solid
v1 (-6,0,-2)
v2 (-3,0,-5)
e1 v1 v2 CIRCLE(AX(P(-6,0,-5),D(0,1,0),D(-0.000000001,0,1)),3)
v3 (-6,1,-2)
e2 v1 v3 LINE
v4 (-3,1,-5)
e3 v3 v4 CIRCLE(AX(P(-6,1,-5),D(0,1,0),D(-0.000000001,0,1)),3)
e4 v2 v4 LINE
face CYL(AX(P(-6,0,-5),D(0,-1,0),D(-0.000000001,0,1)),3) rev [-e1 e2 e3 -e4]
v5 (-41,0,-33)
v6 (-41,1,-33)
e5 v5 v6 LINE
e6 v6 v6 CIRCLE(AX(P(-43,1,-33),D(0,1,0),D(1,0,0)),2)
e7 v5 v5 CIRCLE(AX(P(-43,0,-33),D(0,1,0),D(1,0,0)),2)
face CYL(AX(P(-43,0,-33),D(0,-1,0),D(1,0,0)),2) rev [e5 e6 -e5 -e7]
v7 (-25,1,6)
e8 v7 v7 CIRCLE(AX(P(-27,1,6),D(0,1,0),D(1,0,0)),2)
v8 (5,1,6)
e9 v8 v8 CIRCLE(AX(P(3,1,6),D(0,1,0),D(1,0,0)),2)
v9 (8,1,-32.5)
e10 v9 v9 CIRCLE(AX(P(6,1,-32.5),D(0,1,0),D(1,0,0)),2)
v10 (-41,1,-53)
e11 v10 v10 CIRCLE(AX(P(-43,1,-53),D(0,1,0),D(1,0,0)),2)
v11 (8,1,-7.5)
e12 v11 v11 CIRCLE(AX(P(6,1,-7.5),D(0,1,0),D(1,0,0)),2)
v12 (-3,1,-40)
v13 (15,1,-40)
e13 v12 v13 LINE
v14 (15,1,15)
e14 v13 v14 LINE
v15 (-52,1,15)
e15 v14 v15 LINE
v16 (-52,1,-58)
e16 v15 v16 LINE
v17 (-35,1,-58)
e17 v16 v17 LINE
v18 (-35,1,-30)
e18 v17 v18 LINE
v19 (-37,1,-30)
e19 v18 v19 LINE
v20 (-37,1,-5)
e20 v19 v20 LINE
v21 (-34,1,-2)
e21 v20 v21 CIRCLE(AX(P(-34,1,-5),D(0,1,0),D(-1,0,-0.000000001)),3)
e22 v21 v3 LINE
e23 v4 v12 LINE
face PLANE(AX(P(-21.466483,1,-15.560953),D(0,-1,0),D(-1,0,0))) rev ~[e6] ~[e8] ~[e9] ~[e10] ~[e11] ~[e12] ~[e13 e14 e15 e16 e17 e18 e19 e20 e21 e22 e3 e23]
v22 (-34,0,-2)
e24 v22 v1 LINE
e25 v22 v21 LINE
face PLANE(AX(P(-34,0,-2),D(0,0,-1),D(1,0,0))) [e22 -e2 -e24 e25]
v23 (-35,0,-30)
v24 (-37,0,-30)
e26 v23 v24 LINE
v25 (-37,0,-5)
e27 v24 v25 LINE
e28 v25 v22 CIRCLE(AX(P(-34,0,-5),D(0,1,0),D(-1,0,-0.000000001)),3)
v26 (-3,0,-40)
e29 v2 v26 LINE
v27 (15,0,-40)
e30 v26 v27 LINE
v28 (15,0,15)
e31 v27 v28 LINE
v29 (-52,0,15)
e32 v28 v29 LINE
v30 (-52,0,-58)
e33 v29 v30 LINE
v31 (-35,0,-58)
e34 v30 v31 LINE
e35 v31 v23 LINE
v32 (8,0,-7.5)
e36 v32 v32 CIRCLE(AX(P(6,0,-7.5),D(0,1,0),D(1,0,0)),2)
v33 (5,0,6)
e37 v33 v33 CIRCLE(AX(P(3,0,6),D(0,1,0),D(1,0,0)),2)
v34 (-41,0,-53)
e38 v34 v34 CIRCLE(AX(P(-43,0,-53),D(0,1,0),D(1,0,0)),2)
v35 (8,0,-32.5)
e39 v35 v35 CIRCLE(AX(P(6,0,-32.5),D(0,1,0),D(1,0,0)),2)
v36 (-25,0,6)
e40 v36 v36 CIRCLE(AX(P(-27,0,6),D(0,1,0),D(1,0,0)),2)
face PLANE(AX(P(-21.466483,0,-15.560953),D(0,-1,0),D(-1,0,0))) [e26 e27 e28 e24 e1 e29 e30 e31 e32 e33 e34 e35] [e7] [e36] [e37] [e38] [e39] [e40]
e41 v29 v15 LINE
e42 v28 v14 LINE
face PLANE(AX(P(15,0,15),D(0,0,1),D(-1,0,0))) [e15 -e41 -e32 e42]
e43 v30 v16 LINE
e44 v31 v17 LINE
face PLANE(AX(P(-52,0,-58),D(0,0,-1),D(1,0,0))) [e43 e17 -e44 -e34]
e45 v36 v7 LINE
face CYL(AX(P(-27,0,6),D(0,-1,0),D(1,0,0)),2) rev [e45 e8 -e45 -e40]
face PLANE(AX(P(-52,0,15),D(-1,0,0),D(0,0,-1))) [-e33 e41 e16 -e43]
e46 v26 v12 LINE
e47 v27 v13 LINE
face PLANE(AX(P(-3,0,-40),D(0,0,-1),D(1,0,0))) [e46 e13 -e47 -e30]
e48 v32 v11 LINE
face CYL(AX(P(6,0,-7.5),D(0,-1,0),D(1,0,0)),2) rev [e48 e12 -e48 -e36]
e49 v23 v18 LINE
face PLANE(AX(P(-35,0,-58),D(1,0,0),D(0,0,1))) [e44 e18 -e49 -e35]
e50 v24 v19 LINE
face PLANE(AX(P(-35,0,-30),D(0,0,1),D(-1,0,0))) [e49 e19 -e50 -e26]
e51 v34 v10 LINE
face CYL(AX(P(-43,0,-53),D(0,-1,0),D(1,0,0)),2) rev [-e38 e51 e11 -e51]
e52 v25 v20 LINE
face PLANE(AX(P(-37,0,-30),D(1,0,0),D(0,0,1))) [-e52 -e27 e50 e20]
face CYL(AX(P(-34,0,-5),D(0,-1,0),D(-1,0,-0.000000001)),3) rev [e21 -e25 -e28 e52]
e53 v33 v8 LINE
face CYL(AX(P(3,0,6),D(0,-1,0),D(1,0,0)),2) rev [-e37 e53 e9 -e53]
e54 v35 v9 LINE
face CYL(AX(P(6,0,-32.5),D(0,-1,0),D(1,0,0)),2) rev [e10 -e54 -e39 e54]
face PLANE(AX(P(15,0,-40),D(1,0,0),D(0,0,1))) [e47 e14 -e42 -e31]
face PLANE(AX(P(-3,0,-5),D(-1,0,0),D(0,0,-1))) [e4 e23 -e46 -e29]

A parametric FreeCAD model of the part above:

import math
import FreeCAD as App
import Part
import Sketcher

doc = App.newDocument("Part")
params = doc.addObject("Spreadsheet::Sheet", "Params")
for row, (alias, value) in enumerate([
    ("sketch1_diameter", "4 mm"),
    ("sketch1_radius", "3 mm"),
    ("sketch1_width", "18 mm"),
    ("sketch1_width2", "28 mm"),
    ("sketch1_width3", "2 mm"),
    ("pad1_length", "1 mm"),
], start=1):
    params.set(f"A{row}", alias)
    params.set(f"B{row}", "=" + value)
    params.setAlias(f"B{row}", alias)

body = doc.addObject("PartDesign::Body", "Body")

# Sketch on XZ plane
sketch1 = body.newObject("Sketcher::SketchObject", "Sketch")
sketch1.AttachmentSupport = (doc.getObject("XZ_Plane"), [""])
sketch1.MapMode = "FlatFace"
sketch1.addGeometry([
    Part.LineSegment(App.Vector(15, 15, 0), App.Vector(15, -40, 0)),  # 0
    Part.LineSegment(App.Vector(15, -40, 0), App.Vector(-3, -40, 0)),  # 1
    Part.LineSegment(App.Vector(-3, -40, 0), App.Vector(-3, -5, 0)),  # 2
    Part.ArcOfCircle(Part.Circle(App.Vector(-6, -5, 0), App.Vector(0, 0, 1), 3), math.radians(0), math.radians(90)),  # 3
    Part.LineSegment(App.Vector(-6, -2, 0), App.Vector(-34, -2, 0)),  # 4
    Part.ArcOfCircle(Part.Circle(App.Vector(-34, -5, 0), App.Vector(0, 0, 1), 3), math.radians(90), math.radians(180)),  # 5
    Part.LineSegment(App.Vector(-37, -5, 0), App.Vector(-37, -30, 0)),  # 6
    Part.LineSegment(App.Vector(-37, -30, 0), App.Vector(-35, -30, 0)),  # 7
    Part.LineSegment(App.Vector(-35, -30, 0), App.Vector(-35, -58, 0)),  # 8
    Part.LineSegment(App.Vector(-35, -58, 0), App.Vector(-52, -58, 0)),  # 9
    Part.LineSegment(App.Vector(-52, -58, 0), App.Vector(-52, 15, 0)),  # 10
    Part.LineSegment(App.Vector(-52, 15, 0), App.Vector(15, 15, 0)),  # 11
    Part.Circle(App.Vector(3, 6, 0), App.Vector(0, 0, 1), 2),  # 12
    Part.Circle(App.Vector(6, -7.5, 0), App.Vector(0, 0, 1), 2),  # 13
    Part.Circle(App.Vector(-27, 6, 0), App.Vector(0, 0, 1), 2),  # 14
    Part.Circle(App.Vector(6, -32.5, 0), App.Vector(0, 0, 1), 2),  # 15
    Part.Circle(App.Vector(-43, -33, 0), App.Vector(0, 0, 1), 2),  # 16
    Part.Circle(App.Vector(-43, -53, 0), App.Vector(0, 0, 1), 2),  # 17
], False)
sketch1.addConstraint([
    Sketcher.Constraint("Coincident", 0, 2, 1, 1),
    Sketcher.Constraint("Coincident", 1, 2, 2, 1),
    Sketcher.Constraint("Tangent", 2, 2, 3, 1),
    Sketcher.Constraint("Tangent", 3, 2, 4, 1),
    Sketcher.Constraint("Tangent", 4, 2, 5, 1),
    Sketcher.Constraint("Tangent", 5, 2, 6, 1),
    Sketcher.Constraint("Coincident", 6, 2, 7, 1),
    Sketcher.Constraint("Coincident", 7, 2, 8, 1),
    Sketcher.Constraint("Coincident", 8, 2, 9, 1),
    Sketcher.Constraint("Coincident", 9, 2, 10, 1),
    Sketcher.Constraint("Coincident", 10, 2, 11, 1),
    Sketcher.Constraint("Coincident", 11, 2, 0, 1),
    Sketcher.Constraint("Vertical", 0),
    Sketcher.Constraint("Horizontal", 1),
    Sketcher.Constraint("Vertical", 2),
    Sketcher.Constraint("Horizontal", 4),
    Sketcher.Constraint("Vertical", 6),
    Sketcher.Constraint("Horizontal", 7),
    Sketcher.Constraint("Vertical", 8),
    Sketcher.Constraint("Horizontal", 9),
    Sketcher.Constraint("Vertical", 10),
    Sketcher.Constraint("Horizontal", 11),
    Sketcher.Constraint("Equal", 3, 5),
    Sketcher.Constraint("Equal", 12, 13),
    Sketcher.Constraint("Equal", 13, 14),
    Sketcher.Constraint("Equal", 14, 15),
    Sketcher.Constraint("Equal", 15, 16),
    Sketcher.Constraint("Equal", 16, 17),
    Sketcher.Constraint("Horizontal", 12, 3, 14, 3),
    Sketcher.Constraint("Vertical", 13, 3, 15, 3),
    Sketcher.Constraint("Vertical", 16, 3, 17, 3),
    Sketcher.Constraint("Equal", 4, 8),
    Sketcher.Constraint("Diameter", 12, 4.0),
    Sketcher.Constraint("Radius", 3, 3.0),
    Sketcher.Constraint("DistanceX", 1, 2, 1, 1, 18.0),
    Sketcher.Constraint("DistanceX", 4, 2, 4, 1, 28.0),
    Sketcher.Constraint("DistanceX", 7, 1, 7, 2, 2.0),
    Sketcher.Constraint("DistanceX", 9, 2, 9, 1, 17.0),
    Sketcher.Constraint("DistanceY", 0, 2, 0, 1, 55.0),
    Sketcher.Constraint("DistanceY", 2, 1, 2, 2, 35.0),
    Sketcher.Constraint("DistanceY", 6, 2, 6, 1, 25.0),
    Sketcher.Constraint("DistanceX", 3, 3, -1, 1, 6.0),
    Sketcher.Constraint("DistanceY", 3, 3, -1, 1, 5.0),
    Sketcher.Constraint("DistanceX", -1, 1, 12, 3, 3.0),
    Sketcher.Constraint("DistanceY", -1, 1, 12, 3, 6.0),
    Sketcher.Constraint("DistanceX", -1, 1, 13, 3, 6.0),
    Sketcher.Constraint("DistanceX", 14, 3, -1, 1, 27.0),
    Sketcher.Constraint("DistanceX", 16, 3, -1, 1, 43.0),
    Sketcher.Constraint("DistanceY", 16, 3, -1, 1, 33.0),
    Sketcher.Constraint("DistanceY", 17, 3, -1, 1, 53.0),
    Sketcher.Constraint("DistanceY", 15, 3, 13, 3, 25.0),
    Sketcher.Constraint("DistanceY", 13, 3, -1, 1, 7.5),
])
sketch1.setExpression("Constraints[32]", "Params.sketch1_diameter")
sketch1.setExpression("Constraints[33]", "Params.sketch1_radius")
sketch1.setExpression("Constraints[34]", "Params.sketch1_width")
sketch1.setExpression("Constraints[35]", "Params.sketch1_width2")
sketch1.setExpression("Constraints[36]", "Params.sketch1_width3")
pad1 = body.newObject("PartDesign::Pad", "Pad")
pad1.Profile = sketch1
pad1.setExpression("Length", "Params.pad1_length")
pad1.Reversed = True

doc.recompute()
